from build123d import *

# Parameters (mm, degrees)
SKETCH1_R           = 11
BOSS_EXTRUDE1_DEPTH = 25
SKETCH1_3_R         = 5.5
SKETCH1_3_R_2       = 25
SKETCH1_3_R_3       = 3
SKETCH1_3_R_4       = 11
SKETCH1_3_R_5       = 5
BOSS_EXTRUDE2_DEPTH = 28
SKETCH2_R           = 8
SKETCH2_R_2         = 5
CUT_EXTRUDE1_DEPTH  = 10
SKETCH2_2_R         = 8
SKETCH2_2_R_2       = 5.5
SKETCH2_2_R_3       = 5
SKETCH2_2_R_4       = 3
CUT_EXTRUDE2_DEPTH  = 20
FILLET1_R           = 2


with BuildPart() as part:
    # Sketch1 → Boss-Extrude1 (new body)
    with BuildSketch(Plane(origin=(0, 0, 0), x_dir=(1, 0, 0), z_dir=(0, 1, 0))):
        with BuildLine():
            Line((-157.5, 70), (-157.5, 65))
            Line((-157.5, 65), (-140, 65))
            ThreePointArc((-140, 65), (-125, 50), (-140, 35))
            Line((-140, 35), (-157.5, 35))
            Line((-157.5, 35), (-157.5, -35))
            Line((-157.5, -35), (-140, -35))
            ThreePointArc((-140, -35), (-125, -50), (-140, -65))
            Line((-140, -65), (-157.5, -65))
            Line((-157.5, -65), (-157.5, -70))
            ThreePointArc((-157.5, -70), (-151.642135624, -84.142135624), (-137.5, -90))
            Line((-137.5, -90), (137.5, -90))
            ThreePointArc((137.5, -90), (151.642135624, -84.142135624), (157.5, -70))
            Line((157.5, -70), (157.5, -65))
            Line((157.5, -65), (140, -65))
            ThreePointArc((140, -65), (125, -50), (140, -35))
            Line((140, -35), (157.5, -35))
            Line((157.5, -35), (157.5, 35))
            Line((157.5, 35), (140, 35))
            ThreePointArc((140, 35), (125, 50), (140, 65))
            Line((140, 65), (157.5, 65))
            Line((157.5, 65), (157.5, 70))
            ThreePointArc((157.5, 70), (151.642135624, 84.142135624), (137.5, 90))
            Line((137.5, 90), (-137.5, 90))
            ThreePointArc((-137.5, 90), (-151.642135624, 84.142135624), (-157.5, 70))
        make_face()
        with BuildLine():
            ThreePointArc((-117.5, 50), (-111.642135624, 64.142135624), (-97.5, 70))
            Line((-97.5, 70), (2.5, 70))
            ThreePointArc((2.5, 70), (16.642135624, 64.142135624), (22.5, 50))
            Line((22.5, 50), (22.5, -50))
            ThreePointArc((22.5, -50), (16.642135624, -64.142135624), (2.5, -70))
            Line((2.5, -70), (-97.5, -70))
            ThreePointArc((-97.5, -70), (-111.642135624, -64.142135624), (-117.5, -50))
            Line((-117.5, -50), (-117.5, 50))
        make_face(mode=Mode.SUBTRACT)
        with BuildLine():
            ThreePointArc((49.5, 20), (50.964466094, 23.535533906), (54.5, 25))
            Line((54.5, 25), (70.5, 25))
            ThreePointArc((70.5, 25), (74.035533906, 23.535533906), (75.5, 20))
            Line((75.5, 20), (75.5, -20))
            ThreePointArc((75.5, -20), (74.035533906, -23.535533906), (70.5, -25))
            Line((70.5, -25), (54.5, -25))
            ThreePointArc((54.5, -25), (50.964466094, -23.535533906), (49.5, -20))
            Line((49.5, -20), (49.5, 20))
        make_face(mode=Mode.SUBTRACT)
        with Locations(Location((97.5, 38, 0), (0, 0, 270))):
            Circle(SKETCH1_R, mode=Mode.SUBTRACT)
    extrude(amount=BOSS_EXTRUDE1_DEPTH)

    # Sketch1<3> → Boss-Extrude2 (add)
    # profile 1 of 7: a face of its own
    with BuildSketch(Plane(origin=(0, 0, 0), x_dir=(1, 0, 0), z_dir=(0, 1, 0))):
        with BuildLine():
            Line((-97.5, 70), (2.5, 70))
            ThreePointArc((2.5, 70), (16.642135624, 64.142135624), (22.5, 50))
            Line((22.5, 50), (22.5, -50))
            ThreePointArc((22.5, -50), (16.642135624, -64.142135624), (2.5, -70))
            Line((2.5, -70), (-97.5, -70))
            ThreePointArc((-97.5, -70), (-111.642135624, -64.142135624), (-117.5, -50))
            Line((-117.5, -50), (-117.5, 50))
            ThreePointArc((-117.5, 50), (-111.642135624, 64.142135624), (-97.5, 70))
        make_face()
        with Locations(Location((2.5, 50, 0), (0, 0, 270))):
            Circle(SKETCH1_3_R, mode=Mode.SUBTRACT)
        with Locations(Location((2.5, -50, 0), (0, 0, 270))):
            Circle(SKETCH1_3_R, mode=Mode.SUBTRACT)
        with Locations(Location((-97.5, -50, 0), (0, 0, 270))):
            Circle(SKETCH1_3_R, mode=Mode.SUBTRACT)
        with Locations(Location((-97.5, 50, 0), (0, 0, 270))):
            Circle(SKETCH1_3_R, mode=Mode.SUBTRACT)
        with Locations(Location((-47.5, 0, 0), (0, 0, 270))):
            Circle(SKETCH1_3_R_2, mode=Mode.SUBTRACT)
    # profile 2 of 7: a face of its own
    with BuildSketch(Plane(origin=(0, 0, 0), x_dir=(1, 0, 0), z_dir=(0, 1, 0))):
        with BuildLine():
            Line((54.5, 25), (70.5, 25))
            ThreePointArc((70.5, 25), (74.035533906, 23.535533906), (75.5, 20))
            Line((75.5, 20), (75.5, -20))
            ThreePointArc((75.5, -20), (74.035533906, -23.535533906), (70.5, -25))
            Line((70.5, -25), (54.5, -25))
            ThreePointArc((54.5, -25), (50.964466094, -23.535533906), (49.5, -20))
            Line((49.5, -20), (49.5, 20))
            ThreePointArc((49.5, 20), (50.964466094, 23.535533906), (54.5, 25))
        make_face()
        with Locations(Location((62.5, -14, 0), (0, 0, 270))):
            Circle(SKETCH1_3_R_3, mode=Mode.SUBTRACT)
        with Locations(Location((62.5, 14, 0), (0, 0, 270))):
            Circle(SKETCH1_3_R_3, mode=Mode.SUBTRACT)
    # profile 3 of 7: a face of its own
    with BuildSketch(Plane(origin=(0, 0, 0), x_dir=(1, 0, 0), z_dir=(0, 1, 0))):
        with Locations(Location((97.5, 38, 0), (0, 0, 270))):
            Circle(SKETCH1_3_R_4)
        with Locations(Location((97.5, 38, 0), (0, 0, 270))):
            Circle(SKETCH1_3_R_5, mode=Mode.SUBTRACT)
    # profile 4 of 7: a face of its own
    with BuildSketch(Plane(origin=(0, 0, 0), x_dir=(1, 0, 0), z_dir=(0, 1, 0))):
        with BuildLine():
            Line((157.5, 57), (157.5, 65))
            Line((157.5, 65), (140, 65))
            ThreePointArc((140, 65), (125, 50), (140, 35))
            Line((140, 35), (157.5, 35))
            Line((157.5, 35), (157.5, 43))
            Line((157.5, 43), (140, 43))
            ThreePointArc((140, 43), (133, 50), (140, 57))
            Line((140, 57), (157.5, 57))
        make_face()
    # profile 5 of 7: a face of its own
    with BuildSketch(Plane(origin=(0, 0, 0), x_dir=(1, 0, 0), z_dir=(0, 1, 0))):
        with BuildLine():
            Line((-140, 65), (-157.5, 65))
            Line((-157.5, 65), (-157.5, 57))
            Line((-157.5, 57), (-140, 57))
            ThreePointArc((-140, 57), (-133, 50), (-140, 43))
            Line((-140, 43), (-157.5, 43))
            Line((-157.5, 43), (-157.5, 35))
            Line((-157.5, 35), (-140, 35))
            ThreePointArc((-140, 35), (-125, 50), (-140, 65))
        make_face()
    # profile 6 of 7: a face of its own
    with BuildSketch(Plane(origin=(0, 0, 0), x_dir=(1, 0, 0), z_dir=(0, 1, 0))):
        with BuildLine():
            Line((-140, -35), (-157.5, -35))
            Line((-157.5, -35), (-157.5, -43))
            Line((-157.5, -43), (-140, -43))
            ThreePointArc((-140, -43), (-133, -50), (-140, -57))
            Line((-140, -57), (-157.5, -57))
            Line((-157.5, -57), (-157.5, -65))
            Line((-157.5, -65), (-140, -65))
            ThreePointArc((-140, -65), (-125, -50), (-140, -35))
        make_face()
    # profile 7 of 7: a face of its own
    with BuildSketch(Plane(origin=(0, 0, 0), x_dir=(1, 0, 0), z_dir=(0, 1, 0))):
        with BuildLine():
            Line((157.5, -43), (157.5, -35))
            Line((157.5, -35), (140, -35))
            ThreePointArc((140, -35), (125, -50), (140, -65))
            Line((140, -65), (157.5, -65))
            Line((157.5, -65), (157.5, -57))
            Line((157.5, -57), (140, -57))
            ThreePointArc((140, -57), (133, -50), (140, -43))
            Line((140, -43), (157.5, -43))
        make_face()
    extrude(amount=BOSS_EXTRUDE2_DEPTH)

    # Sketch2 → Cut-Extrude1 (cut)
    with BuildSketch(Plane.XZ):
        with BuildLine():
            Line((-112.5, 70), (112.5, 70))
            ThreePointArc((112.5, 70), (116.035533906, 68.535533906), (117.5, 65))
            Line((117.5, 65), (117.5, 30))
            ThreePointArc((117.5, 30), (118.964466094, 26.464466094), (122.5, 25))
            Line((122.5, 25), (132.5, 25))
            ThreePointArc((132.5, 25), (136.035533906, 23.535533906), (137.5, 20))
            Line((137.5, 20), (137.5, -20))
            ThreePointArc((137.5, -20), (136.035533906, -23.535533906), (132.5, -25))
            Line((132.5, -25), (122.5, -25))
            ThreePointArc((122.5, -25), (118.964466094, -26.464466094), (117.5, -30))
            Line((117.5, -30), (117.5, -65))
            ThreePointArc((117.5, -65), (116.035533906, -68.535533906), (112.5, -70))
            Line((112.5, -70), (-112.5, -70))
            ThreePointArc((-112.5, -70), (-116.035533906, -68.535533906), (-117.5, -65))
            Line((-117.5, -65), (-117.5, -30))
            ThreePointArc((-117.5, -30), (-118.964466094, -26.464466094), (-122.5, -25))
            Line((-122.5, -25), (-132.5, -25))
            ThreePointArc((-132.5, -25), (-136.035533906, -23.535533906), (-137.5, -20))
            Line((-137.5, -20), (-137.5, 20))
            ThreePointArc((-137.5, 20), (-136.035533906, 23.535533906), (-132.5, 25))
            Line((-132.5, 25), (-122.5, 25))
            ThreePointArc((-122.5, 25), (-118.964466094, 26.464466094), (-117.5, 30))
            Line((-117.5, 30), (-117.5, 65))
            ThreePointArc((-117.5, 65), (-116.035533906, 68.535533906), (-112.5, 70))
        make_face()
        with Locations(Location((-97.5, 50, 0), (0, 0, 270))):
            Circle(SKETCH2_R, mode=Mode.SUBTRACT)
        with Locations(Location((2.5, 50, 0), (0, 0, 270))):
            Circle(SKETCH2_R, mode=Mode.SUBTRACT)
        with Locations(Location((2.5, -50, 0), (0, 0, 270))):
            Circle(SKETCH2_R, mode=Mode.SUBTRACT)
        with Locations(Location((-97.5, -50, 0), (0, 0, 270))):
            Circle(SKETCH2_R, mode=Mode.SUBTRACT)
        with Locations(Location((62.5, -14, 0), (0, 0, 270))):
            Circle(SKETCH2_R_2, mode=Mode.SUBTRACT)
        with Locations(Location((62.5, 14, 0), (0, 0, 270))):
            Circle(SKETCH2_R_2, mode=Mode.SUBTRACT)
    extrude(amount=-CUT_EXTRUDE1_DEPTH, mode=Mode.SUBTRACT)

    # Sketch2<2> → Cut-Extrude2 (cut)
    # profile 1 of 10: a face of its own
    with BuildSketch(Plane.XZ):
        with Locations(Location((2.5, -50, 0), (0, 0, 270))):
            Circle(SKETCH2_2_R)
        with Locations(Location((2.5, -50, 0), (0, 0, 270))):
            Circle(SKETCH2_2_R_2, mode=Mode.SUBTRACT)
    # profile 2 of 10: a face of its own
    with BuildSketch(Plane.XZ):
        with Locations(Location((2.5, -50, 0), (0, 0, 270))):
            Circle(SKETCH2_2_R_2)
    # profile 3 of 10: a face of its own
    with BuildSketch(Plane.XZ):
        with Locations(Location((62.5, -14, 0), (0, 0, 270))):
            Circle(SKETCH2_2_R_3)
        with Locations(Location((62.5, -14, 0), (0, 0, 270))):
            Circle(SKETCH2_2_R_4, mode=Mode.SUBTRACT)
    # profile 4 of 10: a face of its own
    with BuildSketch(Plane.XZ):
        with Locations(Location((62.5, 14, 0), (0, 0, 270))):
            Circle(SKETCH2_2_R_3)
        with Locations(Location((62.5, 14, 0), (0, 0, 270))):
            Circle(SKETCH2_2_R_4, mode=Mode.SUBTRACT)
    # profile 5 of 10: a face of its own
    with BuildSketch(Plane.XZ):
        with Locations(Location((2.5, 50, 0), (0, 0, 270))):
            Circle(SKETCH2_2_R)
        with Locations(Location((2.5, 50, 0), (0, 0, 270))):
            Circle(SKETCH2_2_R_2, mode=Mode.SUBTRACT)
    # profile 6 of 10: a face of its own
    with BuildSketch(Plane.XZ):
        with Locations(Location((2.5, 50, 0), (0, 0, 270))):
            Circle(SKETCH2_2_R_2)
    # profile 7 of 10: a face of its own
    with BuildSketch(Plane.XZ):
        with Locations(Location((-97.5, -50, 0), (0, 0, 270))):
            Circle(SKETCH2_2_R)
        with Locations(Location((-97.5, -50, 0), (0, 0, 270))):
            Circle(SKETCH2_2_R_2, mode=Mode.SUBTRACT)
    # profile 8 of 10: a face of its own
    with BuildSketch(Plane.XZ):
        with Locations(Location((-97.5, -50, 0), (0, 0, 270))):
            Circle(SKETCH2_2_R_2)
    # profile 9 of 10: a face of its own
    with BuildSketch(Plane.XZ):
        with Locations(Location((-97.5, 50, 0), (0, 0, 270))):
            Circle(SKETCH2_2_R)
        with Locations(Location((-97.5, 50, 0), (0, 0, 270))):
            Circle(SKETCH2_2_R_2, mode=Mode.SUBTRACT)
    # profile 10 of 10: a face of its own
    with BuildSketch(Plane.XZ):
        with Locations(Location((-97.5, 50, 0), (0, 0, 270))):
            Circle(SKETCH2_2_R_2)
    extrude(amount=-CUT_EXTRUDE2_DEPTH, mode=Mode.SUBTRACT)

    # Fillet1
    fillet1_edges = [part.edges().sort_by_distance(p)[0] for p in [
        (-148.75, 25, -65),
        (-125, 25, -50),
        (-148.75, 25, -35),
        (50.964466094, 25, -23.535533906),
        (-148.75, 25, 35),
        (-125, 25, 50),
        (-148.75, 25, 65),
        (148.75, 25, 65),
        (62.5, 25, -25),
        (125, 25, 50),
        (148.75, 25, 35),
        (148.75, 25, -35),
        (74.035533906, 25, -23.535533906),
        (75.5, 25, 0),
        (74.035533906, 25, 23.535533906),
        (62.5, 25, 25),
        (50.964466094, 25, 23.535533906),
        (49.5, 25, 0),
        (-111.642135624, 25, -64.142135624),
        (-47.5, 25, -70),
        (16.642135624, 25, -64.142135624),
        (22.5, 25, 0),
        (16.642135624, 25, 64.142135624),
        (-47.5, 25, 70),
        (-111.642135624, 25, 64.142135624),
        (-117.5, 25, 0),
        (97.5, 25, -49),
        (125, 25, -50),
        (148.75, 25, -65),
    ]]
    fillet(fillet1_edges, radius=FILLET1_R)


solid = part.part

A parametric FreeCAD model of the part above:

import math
import FreeCAD as App
import Part
import Sketcher

V = App.Vector
Q = App.Units.Quantity


def edges_at(feature, points):
    """Names of the edges that pass closest to the given points."""
    edges = feature.Shape.Edges
    near = lambda p: min(range(len(edges)), key=lambda i: edges[i].distToShape(Part.Vertex(*p))[0])
    return sorted({f"Edge{near(p) + 1}" for p in points})

doc = App.newDocument("Part")
params = doc.addObject("Spreadsheet::Sheet", "Params")
for row, (alias, value) in enumerate([
    ("sketch1_diameter", "22 mm"),
    ("sketch1_radius", "15 mm"),
    ("sketch1_radius2", "20 mm"),
    ("sketch1_radius3", "5 mm"),
    ("sketch1_width", "275 mm"),
    ("pad1_length", "25 mm"),
    ("sketch2_diameter", "11 mm"),
    ("sketch2_diameter2", "50 mm"),
    ("sketch2_diameter3", "6 mm"),
    ("sketch2_diameter4", "22 mm"),
    ("sketch2_diameter5", "10 mm"),
    ("pad2_length", "28 mm"),
    ("sketch3_diameter", "16 mm"),
    ("sketch3_diameter2", "10 mm"),
    ("sketch3_width", "225 mm"),
    ("sketch3_width2", "10 mm"),
    ("sketch3_height", "35 mm"),
    ("pocket1_length", "10 mm"),
    ("sketch4_diameter", "16 mm"),
    ("sketch4_diameter2", "10 mm"),
    ("sketch4_diameter3", "6 mm"),
    ("pocket2_length", "20 mm"),
    ("fillet_radius", "2 mm"),
], start=1):
    params.set(f"A{row}", alias)
    params.set(f"B{row}", "=" + value)
    params.setAlias(f"B{row}", alias)

body = doc.addObject("PartDesign::Body", "Body")

# Sketch on XZ plane
sketch1 = doc.addObject("Sketcher::SketchObject", "Sketch")
body.addObject(sketch1)
sketch1.AttachmentSupport = (doc.XZ_Plane, [""])
sketch1.MapMode = "FlatFace"
sketch1.addGeometry([
    Part.LineSegment(V(-157.5, -70, 0), V(-157.5, -65, 0)),  # 0
    Part.LineSegment(V(-157.5, -65, 0), V(-140, -65, 0)),  # 1
    Part.ArcOfCircle(Part.Circle(V(-140, -50, 0), V(0, 0, 1), 15), math.radians(-90), math.radians(90)),  # 2
    Part.LineSegment(V(-140, -35, 0), V(-157.5, -35, 0)),  # 3
    Part.LineSegment(V(-157.5, -35, 0), V(-157.5, 35, 0)),  # 4
    Part.LineSegment(V(-157.5, 35, 0), V(-140, 35, 0)),  # 5
    Part.ArcOfCircle(Part.Circle(V(-140, 50, 0), V(0, 0, 1), 15), math.radians(-90), math.radians(90)),  # 6
    Part.LineSegment(V(-140, 65, 0), V(-157.5, 65, 0)),  # 7
    Part.LineSegment(V(-157.5, 65, 0), V(-157.5, 70, 0)),  # 8
    Part.ArcOfCircle(Part.Circle(V(-137.5, 70, 0), V(0, 0, 1), 20), math.radians(90), math.radians(180)),  # 9
    Part.LineSegment(V(-137.5, 90, 0), V(137.5, 90, 0)),  # 10
    Part.ArcOfCircle(Part.Circle(V(137.5, 70, 0), V(0, 0, 1), 20), math.radians(0), math.radians(90)),  # 11
    Part.LineSegment(V(157.5, 70, 0), V(157.5, 65, 0)),  # 12
    Part.LineSegment(V(157.5, 65, 0), V(140, 65, 0)),  # 13
    Part.ArcOfCircle(Part.Circle(V(140, 50, 0), V(0, 0, 1), 15), math.radians(90), math.radians(270)),  # 14
    Part.LineSegment(V(140, 35, 0), V(157.5, 35, 0)),  # 15
    Part.LineSegment(V(157.5, 35, 0), V(157.5, -35, 0)),  # 16
    Part.LineSegment(V(157.5, -35, 0), V(140, -35, 0)),  # 17
    Part.ArcOfCircle(Part.Circle(V(140, -50, 0), V(0, 0, 1), 15), math.radians(90), math.radians(270)),  # 18
    Part.LineSegment(V(140, -65, 0), V(157.5, -65, 0)),  # 19
    Part.LineSegment(V(157.5, -65, 0), V(157.5, -70, 0)),  # 20
    Part.ArcOfCircle(Part.Circle(V(137.5, -70, 0), V(0, 0, 1), 20), math.radians(-90), math.radians(0)),  # 21
    Part.LineSegment(V(137.5, -90, 0), V(-137.5, -90, 0)),  # 22
    Part.ArcOfCircle(Part.Circle(V(-137.5, -70, 0), V(0, 0, 1), 20), math.radians(180), math.radians(270)),  # 23
    Part.LineSegment(V(-117.5, 50, 0), V(-117.5, -50, 0)),  # 24
    Part.ArcOfCircle(Part.Circle(V(-97.5, -50, 0), V(0, 0, 1), 20), math.radians(180), math.radians(270)),  # 25
    Part.LineSegment(V(-97.5, -70, 0), V(2.5, -70, 0)),  # 26
    Part.ArcOfCircle(Part.Circle(V(2.5, -50, 0), V(0, 0, 1), 20), math.radians(-90), math.radians(0)),  # 27
    Part.LineSegment(V(22.5, -50, 0), V(22.5, 50, 0)),  # 28
    Part.ArcOfCircle(Part.Circle(V(2.5, 50, 0), V(0, 0, 1), 20), math.radians(0), math.radians(90)),  # 29
    Part.LineSegment(V(2.5, 70, 0), V(-97.5, 70, 0)),  # 30
    Part.ArcOfCircle(Part.Circle(V(-97.5, 50, 0), V(0, 0, 1), 20), math.radians(90), math.radians(180)),  # 31
    Part.LineSegment(V(49.5, 20, 0), V(49.5, -20, 0)),  # 32
    Part.ArcOfCircle(Part.Circle(V(54.5, -20, 0), V(0, 0, 1), 5), math.radians(180), math.radians(270)),  # 33
    Part.LineSegment(V(54.5, -25, 0), V(70.5, -25, 0)),  # 34
    Part.ArcOfCircle(Part.Circle(V(70.5, -20, 0), V(0, 0, 1), 5), math.radians(-90), math.radians(0)),  # 35
    Part.LineSegment(V(75.5, -20, 0), V(75.5, 20, 0)),  # 36
    Part.ArcOfCircle(Part.Circle(V(70.5, 20, 0), V(0, 0, 1), 5), math.radians(0), math.radians(90)),  # 37
    Part.LineSegment(V(70.5, 25, 0), V(54.5, 25, 0)),  # 38
    Part.ArcOfCircle(Part.Circle(V(54.5, 20, 0), V(0, 0, 1), 5), math.radians(90), math.radians(180)),  # 39
    Part.Circle(V(97.5, -38, 0), V(0, 0, 1), 11),  # 40
], False)
sketch1.addConstraint([
    Sketcher.Constraint("Coincident", 0, 2, 1, 1),
    Sketcher.Constraint("Tangent", 1, 2, 2, 1),
    Sketcher.Constraint("Tangent", 2, 2, 3, 1),
    Sketcher.Constraint("Coincident", 3, 2, 4, 1),
    Sketcher.Constraint("Coincident", 4, 2, 5, 1),
    Sketcher.Constraint("Tangent", 5, 2, 6, 1),
    Sketcher.Constraint("Tangent", 6, 2, 7, 1),
    Sketcher.Constraint("Coincident", 7, 2, 8, 1),
    Sketcher.Constraint("Tangent", 8, 2, 9, 2),
    Sketcher.Constraint("Tangent", 9, 1, 10, 1),
    Sketcher.Constraint("Tangent", 10, 2, 11, 2),
    Sketcher.Constraint("Tangent", 11, 1, 12, 1),
    Sketcher.Constraint("Coincident", 12, 2, 13, 1),
    Sketcher.Constraint("Tangent", 13, 2, 14, 1),
    Sketcher.Constraint("Tangent", 14, 2, 15, 1),
    Sketcher.Constraint("Coincident", 15, 2, 16, 1),
    Sketcher.Constraint("Coincident", 16, 2, 17, 1),
    Sketcher.Constraint("Tangent", 17, 2, 18, 1),
    Sketcher.Constraint("Tangent", 18, 2, 19, 1),
    Sketcher.Constraint("Coincident", 19, 2, 20, 1),
    Sketcher.Constraint("Tangent", 20, 2, 21, 2),
    Sketcher.Constraint("Tangent", 21, 1, 22, 1),
    Sketcher.Constraint("Tangent", 22, 2, 23, 2),
    Sketcher.Constraint("Tangent", 23, 1, 0, 1),
    Sketcher.Constraint("Tangent", 24, 2, 25, 1),
    Sketcher.Constraint("Tangent", 25, 2, 26, 1),
    Sketcher.Constraint("Tangent", 26, 2, 27, 1),
    Sketcher.Constraint("Tangent", 27, 2, 28, 1),
    Sketcher.Constraint("Tangent", 28, 2, 29, 1),
    Sketcher.Constraint("Tangent", 29, 2, 30, 1),
    Sketcher.Constraint("Tangent", 30, 2, 31, 1),
    Sketcher.Constraint("Tangent", 31, 2, 24, 1),
    Sketcher.Constraint("Tangent", 32, 2, 33, 1),
    Sketcher.Constraint("Tangent", 33, 2, 34, 1),
    Sketcher.Constraint("Tangent", 34, 2, 35, 1),
    Sketcher.Constraint("Tangent", 35, 2, 36, 1),
    Sketcher.Constraint("Tangent", 36, 2, 37, 1),
    Sketcher.Constraint("Tangent", 37, 2, 38, 1),
    Sketcher.Constraint("Tangent", 38, 2, 39, 1),
    Sketcher.Constraint("Tangent", 39, 2, 32, 1),
    Sketcher.Constraint("Vertical", 0),
    Sketcher.Constraint("Horizontal", 1),
    Sketcher.Constraint("Horizontal", 3),
    Sketcher.Constraint("Vertical", 4),
    Sketcher.Constraint("Horizontal", 5),
    Sketcher.Constraint("Horizontal", 7),
    Sketcher.Constraint("Vertical", 8),
    Sketcher.Constraint("Horizontal", 10),
    Sketcher.Constraint("Vertical", 12),
    Sketcher.Constraint("Horizontal", 13),
    Sketcher.Constraint("Horizontal", 15),
    Sketcher.Constraint("Vertical", 16),
    Sketcher.Constraint("Horizontal", 17),
    Sketcher.Constraint("Horizontal", 19),
    Sketcher.Constraint("Vertical", 20),
    Sketcher.Constraint("Horizontal", 22),
    Sketcher.Constraint("Vertical", 24),
    Sketcher.Constraint("Horizontal", 26),
    Sketcher.Constraint("Vertical", 28),
    Sketcher.Constraint("Horizontal", 30),
    Sketcher.Constraint("Vertical", 32),
    Sketcher.Constraint("Horizontal", 34),
    Sketcher.Constraint("Vertical", 36),
    Sketcher.Constraint("Horizontal", 38),
    Sketcher.Constraint("Equal", 2, 6),
    Sketcher.Constraint("Equal", 9, 11),
    Sketcher.Constraint("Equal", 6, 14),
    Sketcher.Constraint("Equal", 14, 18),
    Sketcher.Constraint("Equal", 11, 21),
    Sketcher.Constraint("Equal", 21, 23),
    Sketcher.Constraint("Equal", 23, 25),
    Sketcher.Constraint("Equal", 25, 27),
    Sketcher.Constraint("Equal", 27, 29),
    Sketcher.Constraint("Equal", 29, 31),
    Sketcher.Constraint("Equal", 33, 35),
    Sketcher.Constraint("Equal", 35, 37),
    Sketcher.Constraint("Equal", 37, 39),
    Sketcher.Constraint("Symmetric", 2, 3, 14, 3, -1, 1),
    Sketcher.Constraint("Symmetric", 6, 3, 18, 3, -1, 1),
    Sketcher.Constraint("Symmetric", 9, 3, 21, 3, -1, 1),
    Sketcher.Constraint("Symmetric", 6, 3, 14, 3, -2),
    Sketcher.Constraint("Horizontal", 18, 3, 25, 3),
    Sketcher.Constraint("Horizontal", 14, 3, 29, 3),
    Sketcher.Constraint("Horizontal", 23, 1, 25, 2),
    Sketcher.Constraint("Vertical", 11, 3, 21, 3),
    Sketcher.Constraint("Vertical", 9, 3, 23, 3),
    Sketcher.Constraint("Vertical", 0, 2, 3, 2),
    Sketcher.Constraint("Vertical", 12, 2, 15, 2),
    Sketcher.Constraint("Equal", 30, 24),
    Sketcher.Constraint("Diameter", 40, Q("22 mm")),
    Sketcher.Constraint("Radius", 2, Q("15 mm")),
    Sketcher.Constraint("Radius", 9, Q("20 mm")),
    Sketcher.Constraint("Radius", 33, Q("5 mm")),
    Sketcher.Constraint("DistanceX", 10, 1, 10, 2, Q("275 mm")),
    Sketcher.Constraint("DistanceX", 26, 1, 26, 2, Q("100 mm")),
    Sketcher.Constraint("DistanceX", 34, 1, 34, 2, Q("16 mm")),
    Sketcher.Constraint("DistanceY", 32, 2, 32, 1, Q("40 mm")),
    Sketcher.Constraint("DistanceX", 1, 1, 1, 2, Q("17.5 mm")),
    Sketcher.Constraint("DistanceY", 33, 3, -1, 1, Q("20 mm")),
    Sketcher.Constraint("DistanceY", 40, 3, -1, 1, Q("38 mm")),
    Sketcher.Constraint("DistanceX", 23, 3, 25, 3, Q("40 mm")),
    Sketcher.Constraint("DistanceX", 27, 3, 33, 3, Q("52 mm")),
    Sketcher.Constraint("DistanceX", 35, 3, 40, 3, Q("27 mm")),
])
sketch1.setExpression("Constraints[89]", "Params.sketch1_diameter")
sketch1.setExpression("Constraints[90]", "Params.sketch1_radius")
sketch1.setExpression("Constraints[91]", "Params.sketch1_radius2")
sketch1.setExpression("Constraints[92]", "Params.sketch1_radius3")
sketch1.setExpression("Constraints[93]", "Params.sketch1_width")
pad1 = doc.addObject("PartDesign::Pad", "Pad")
body.addObject(pad1)
pad1.Profile = sketch1
pad1.setExpression("Length", "Params.pad1_length")
pad1.Reversed = True

# Sketch on XZ plane
sketch2 = doc.addObject("Sketcher::SketchObject", "Sketch001")
body.addObject(sketch2)
sketch2.AttachmentSupport = (doc.XZ_Plane, [""])
sketch2.MapMode = "FlatFace"
sketch2.addGeometry([
    Part.LineSegment(V(2.5, -70, 0), V(-97.5, -70, 0)),  # 0
    Part.ArcOfCircle(Part.Circle(V(-97.5, -50, 0), V(0, 0, 1), 20), math.radians(180), math.radians(270)),  # 1
    Part.LineSegment(V(-117.5, -50, 0), V(-117.5, 50, 0)),  # 2
    Part.ArcOfCircle(Part.Circle(V(-97.5, 50, 0), V(0, 0, 1), 20), math.radians(90), math.radians(180)),  # 3
    Part.LineSegment(V(-97.5, 70, 0), V(2.5, 70, 0)),  # 4
    Part.ArcOfCircle(Part.Circle(V(2.5, 50, 0), V(0, 0, 1), 20), math.radians(0), math.radians(90)),  # 5
    Part.LineSegment(V(22.5, 50, 0), V(22.5, -50, 0)),  # 6
    Part.ArcOfCircle(Part.Circle(V(2.5, -50, 0), V(0, 0, 1), 20), math.radians(-90), math.radians(0)),  # 7
    Part.Circle(V(2.5, 50, 0), V(0, 0, 1), 5.5),  # 8
    Part.Circle(V(-97.5, 50, 0), V(0, 0, 1), 5.5),  # 9
    Part.Circle(V(2.5, -50, 0), V(0, 0, 1), 5.5),  # 10
    Part.Circle(V(-47.5, 0, 0), V(0, 0, 1), 25),  # 11
    Part.Circle(V(-97.5, -50, 0), V(0, 0, 1), 5.5),  # 12
    Part.LineSegment(V(70.5, -25, 0), V(54.5, -25, 0)),  # 13
    Part.ArcOfCircle(Part.Circle(V(54.5, -20, 0), V(0, 0, 1), 5), math.radians(180), math.radians(270)),  # 14
    Part.LineSegment(V(49.5, -20, 0), V(49.5, 20, 0)),  # 15
    Part.ArcOfCircle(Part.Circle(V(54.5, 20, 0), V(0, 0, 1), 5), math.radians(90), math.radians(180)),  # 16
    Part.LineSegment(V(54.5, 25, 0), V(70.5, 25, 0)),  # 17
    Part.ArcOfCircle(Part.Circle(V(70.5, 20, 0), V(0, 0, 1), 5), math.radians(0), math.radians(90)),  # 18
    Part.LineSegment(V(75.5, 20, 0), V(75.5, -20, 0)),  # 19
    Part.ArcOfCircle(Part.Circle(V(70.5, -20, 0), V(0, 0, 1), 5), math.radians(-90), math.radians(0)),  # 20
    Part.Circle(V(62.5, 14, 0), V(0, 0, 1), 3),  # 21
    Part.Circle(V(62.5, -14, 0), V(0, 0, 1), 3),  # 22
    Part.Circle(V(97.5, -38, 0), V(0, 0, 1), 11),  # 23
    Part.Circle(V(97.5, -38, 0), V(0, 0, 1), 5),  # 24
    Part.LineSegment(V(157.5, -57, 0), V(157.5, -65, 0)),  # 25
    Part.LineSegment(V(157.5, -65, 0), V(140, -65, 0)),  # 26
    Part.ArcOfCircle(Part.Circle(V(140, -50, 0), V(0, 0, 1), 15), math.radians(90), math.radians(270)),  # 27
    Part.LineSegment(V(140, -35, 0), V(157.5, -35, 0)),  # 28
    Part.LineSegment(V(157.5, -35, 0), V(157.5, -43, 0)),  # 29
    Part.LineSegment(V(157.5, -43, 0), V(140, -43, 0)),  # 30
    Part.ArcOfCircle(Part.Circle(V(140, -50, 0), V(0, 0, 1), 7), math.radians(90), math.radians(270)),  # 31
    Part.LineSegment(V(140, -57, 0), V(157.5, -57, 0)),  # 32
    Part.LineSegment(V(-140, -65, 0), V(-157.5, -65, 0)),  # 33
    Part.LineSegment(V(-157.5, -65, 0), V(-157.5, -57, 0)),  # 34
    Part.LineSegment(V(-157.5, -57, 0), V(-140, -57, 0)),  # 35
    Part.ArcOfCircle(Part.Circle(V(-140, -50, 0), V(0, 0, 1), 7), math.radians(-90), math.radians(90)),  # 36
    Part.LineSegment(V(-140, -43, 0), V(-157.5, -43, 0)),  # 37
    Part.LineSegment(V(-157.5, -43, 0), V(-157.5, -35, 0)),  # 38
    Part.LineSegment(V(-157.5, -35, 0), V(-140, -35, 0)),  # 39
    Part.ArcOfCircle(Part.Circle(V(-140, -50, 0), V(0, 0, 1), 15), math.radians(-90), math.radians(90)),  # 40
    Part.LineSegment(V(-140, 35, 0), V(-157.5, 35, 0)),  # 41
    Part.LineSegment(V(-157.5, 35, 0), V(-157.5, 43, 0)),  # 42
    Part.LineSegment(V(-157.5, 43, 0), V(-140, 43, 0)),  # 43
    Part.ArcOfCircle(Part.Circle(V(-140, 50, 0), V(0, 0, 1), 7), math.radians(-90), math.radians(90)),  # 44
    Part.LineSegment(V(-140, 57, 0), V(-157.5, 57, 0)),  # 45
    Part.LineSegment(V(-157.5, 57, 0), V(-157.5, 65, 0)),  # 46
    Part.LineSegment(V(-157.5, 65, 0), V(-140, 65, 0)),  # 47
    Part.ArcOfCircle(Part.Circle(V(-140, 50, 0), V(0, 0, 1), 15), math.radians(-90), math.radians(90)),  # 48
    Part.LineSegment(V(157.5, 43, 0), V(157.5, 35, 0)),  # 49
    Part.LineSegment(V(157.5, 35, 0), V(140, 35, 0)),  # 50
    Part.ArcOfCircle(Part.Circle(V(140, 50, 0), V(0, 0, 1), 15), math.radians(90), math.radians(270)),  # 51
    Part.LineSegment(V(140, 65, 0), V(157.5, 65, 0)),  # 52
    Part.LineSegment(V(157.5, 65, 0), V(157.5, 57, 0)),  # 53
    Part.LineSegment(V(157.5, 57, 0), V(140, 57, 0)),  # 54
    Part.ArcOfCircle(Part.Circle(V(140, 50, 0), V(0, 0, 1), 7), math.radians(90), math.radians(270)),  # 55
    Part.LineSegment(V(140, 43, 0), V(157.5, 43, 0)),  # 56
], False)
sketch2.addConstraint([
    Sketcher.Constraint("Tangent", 0, 2, 1, 2),
    Sketcher.Constraint("Tangent", 1, 1, 2, 1),
    Sketcher.Constraint("Tangent", 2, 2, 3, 2),
    Sketcher.Constraint("Tangent", 3, 1, 4, 1),
    Sketcher.Constraint("Tangent", 4, 2, 5, 2),
    Sketcher.Constraint("Tangent", 5, 1, 6, 1),
    Sketcher.Constraint("Tangent", 6, 2, 7, 2),
    Sketcher.Constraint("Tangent", 7, 1, 0, 1),
    Sketcher.Constraint("Tangent", 13, 2, 14, 2),
    Sketcher.Constraint("Tangent", 14, 1, 15, 1),
    Sketcher.Constraint("Tangent", 15, 2, 16, 2),
    Sketcher.Constraint("Tangent", 16, 1, 17, 1),
    Sketcher.Constraint("Tangent", 17, 2, 18, 2),
    Sketcher.Constraint("Tangent", 18, 1, 19, 1),
    Sketcher.Constraint("Tangent", 19, 2, 20, 2),
    Sketcher.Constraint("Tangent", 20, 1, 13, 1),
    Sketcher.Constraint("Coincident", 25, 2, 26, 1),
    Sketcher.Constraint("Tangent", 26, 2, 27, 2),
    Sketcher.Constraint("Tangent", 27, 1, 28, 1),
    Sketcher.Constraint("Coincident", 28, 2, 29, 1),
    Sketcher.Constraint("Coincident", 29, 2, 30, 1),
    Sketcher.Constraint("Tangent", 30, 2, 31, 1),
    Sketcher.Constraint("Tangent", 31, 2, 32, 1),
    Sketcher.Constraint("Coincident", 32, 2, 25, 1),
    Sketcher.Constraint("Coincident", 33, 2, 34, 1),
    Sketcher.Constraint("Coincident", 34, 2, 35, 1),
    Sketcher.Constraint("Tangent", 35, 2, 36, 1),
    Sketcher.Constraint("Tangent", 36, 2, 37, 1),
    Sketcher.Constraint("Coincident", 37, 2, 38, 1),
    Sketcher.Constraint("Coincident", 38, 2, 39, 1),
    Sketcher.Constraint("Tangent", 39, 2, 40, 2),
    Sketcher.Constraint("Tangent", 40, 1, 33, 1),
    Sketcher.Constraint("Coincident", 41, 2, 42, 1),
    Sketcher.Constraint("Coincident", 42, 2, 43, 1),
    Sketcher.Constraint("Tangent", 43, 2, 44, 1),
    Sketcher.Constraint("Tangent", 44, 2, 45, 1),
    Sketcher.Constraint("Coincident", 45, 2, 46, 1),
    Sketcher.Constraint("Coincident", 46, 2, 47, 1),
    Sketcher.Constraint("Tangent", 47, 2, 48, 2),
    Sketcher.Constraint("Tangent", 48, 1, 41, 1),
    Sketcher.Constraint("Coincident", 49, 2, 50, 1),
    Sketcher.Constraint("Tangent", 50, 2, 51, 2),
    Sketcher.Constraint("Tangent", 51, 1, 52, 1),
    Sketcher.Constraint("Coincident", 52, 2, 53, 1),
    Sketcher.Constraint("Coincident", 53, 2, 54, 1),
    Sketcher.Constraint("Tangent", 54, 2, 55, 1),
    Sketcher.Constraint("Tangent", 55, 2, 56, 1),
    Sketcher.Constraint("Coincident", 56, 2, 49, 1),
    Sketcher.Constraint("Horizontal", 0),
    Sketcher.Constraint("Vertical", 2),
    Sketcher.Constraint("Horizontal", 4),
    Sketcher.Constraint("Vertical", 6),
    Sketcher.Constraint("Horizontal", 13),
    Sketcher.Constraint("Vertical", 15),
    Sketcher.Constraint("Horizontal", 17),
    Sketcher.Constraint("Vertical", 19),
    Sketcher.Constraint("Vertical", 25),
    Sketcher.Constraint("Horizontal", 26),
    Sketcher.Constraint("Horizontal", 28),
    Sketcher.Constraint("Vertical", 29),
    Sketcher.Constraint("Horizontal", 30),
    Sketcher.Constraint("Horizontal", 32),
    Sketcher.Constraint("Horizontal", 33),
    Sketcher.Constraint("Vertical", 34),
    Sketcher.Constraint("Horizontal", 35),
    Sketcher.Constraint("Horizontal", 37),
    Sketcher.Constraint("Vertical", 38),
    Sketcher.Constraint("Horizontal", 39),
    Sketcher.Constraint("Horizontal", 41),
    Sketcher.Constraint("Vertical", 42),
    Sketcher.Constraint("Horizontal", 43),
    Sketcher.Constraint("Horizontal", 45),
    Sketcher.Constraint("Vertical", 46),
    Sketcher.Constraint("Horizontal", 47),
    Sketcher.Constraint("Vertical", 49),
    Sketcher.Constraint("Horizontal", 50),
    Sketcher.Constraint("Horizontal", 52),
    Sketcher.Constraint("Vertical", 53),
    Sketcher.Constraint("Horizontal", 54),
    Sketcher.Constraint("Horizontal", 56),
    Sketcher.Constraint("Coincident", 8, 3, 5, 3),
    Sketcher.Constraint("Coincident", 9, 3, 3, 3),
    Sketcher.Constraint("Coincident", 10, 3, 7, 3),
    Sketcher.Constraint("Coincident", 12, 3, 1, 3),
    Sketcher.Constraint("Coincident", 24, 3, 23, 3),
    Sketcher.Constraint("Coincident", 31, 3, 27, 3),
    Sketcher.Constraint("Coincident", 40, 3, 36, 3),
    Sketcher.Constraint("Coincident", 48, 3, 44, 3),
    Sketcher.Constraint("Coincident", 55, 3, 51, 3),
    Sketcher.Constraint("Equal", 1, 3),
    Sketcher.Constraint("Equal", 3, 5),
    Sketcher.Constraint("Equal", 5, 7),
    Sketcher.Constraint("Equal", 8, 9),
    Sketcher.Constraint("Equal", 9, 10),
    Sketcher.Constraint("Equal", 10, 12),
    Sketcher.Constraint("Equal", 14, 16),
    Sketcher.Constraint("Equal", 16, 18),
    Sketcher.Constraint("Equal", 18, 20),
    Sketcher.Constraint("Equal", 21, 22),
    Sketcher.Constraint("Equal", 20, 24),
    Sketcher.Constraint("Equal", 31, 36),
    Sketcher.Constraint("Equal", 27, 40),
    Sketcher.Constraint("Equal", 36, 44),
    Sketcher.Constraint("Equal", 40, 48),
    Sketcher.Constraint("Equal", 48, 51),
    Sketcher.Constraint("Equal", 44, 55),
    Sketcher.Constraint("Symmetric", 27, 3, 44, 3, -1, 1),
    Sketcher.Constraint("Symmetric", 36, 3, 51, 3, -1, 1),
    Sketcher.Constraint("Symmetric", 27, 3, 36, 3, -2),
    Sketcher.Constraint("Symmetric", 21, 3, 22, 3, -1),
    Sketcher.Constraint("PointOnObject", 11, 3, -1),
    Sketcher.Constraint("Horizontal", 12, 3, 27, 3),
    Sketcher.Constraint("Horizontal", 9, 3, 44, 3),
    Sketcher.Constraint("Vertical", 25, 2, 28, 2),
    Sketcher.Constraint("Vertical", 34, 2, 37, 2),
    Sketcher.Constraint("Vertical", 38, 2, 41, 2),
    Sketcher.Constraint("Vertical", 42, 2, 45, 2),
    Sketcher.Constraint("Vertical", 32, 2, 49, 2),
    Sketcher.Constraint("Vertical", 49, 2, 52, 2),
    Sketcher.Constraint("Equal", 32, 33),
    Sketcher.Constraint("Equal", 4, 2),
    Sketcher.Constraint("Diameter", 8, Q("11 mm")),
    Sketcher.Constraint("Diameter", 11, Q("50 mm")),
    Sketcher.Constraint("Diameter", 21, Q("6 mm")),
    Sketcher.Constraint("Diameter", 23, Q("22 mm")),
    Sketcher.Constraint("Diameter", 24, Q("10 mm")),
    Sketcher.Constraint("Radius", 1, Q("20 mm")),
    Sketcher.Constraint("Radius", 27, Q("15 mm")),
    Sketcher.Constraint("Radius", 31, Q("7 mm")),
    Sketcher.Constraint("DistanceX", 0, 2, 0, 1, Q("100 mm")),
    Sketcher.Constraint("DistanceX", 13, 2, 13, 1, Q("16 mm")),
    Sketcher.Constraint("DistanceY", 15, 1, 15, 2, Q("40 mm")),
    Sketcher.Constraint("DistanceX", 26, 2, 26, 1, Q("17.5 mm")),
    Sketcher.Constraint("DistanceY", 14, 3, -1, 1, Q("20 mm")),
    Sketcher.Constraint("DistanceY", -1, 1, 21, 3, Q("14 mm")),
    Sketcher.Constraint("DistanceY", 23, 3, -1, 1, Q("38 mm")),
    Sketcher.Constraint("DistanceX", -1, 1, 27, 3, Q("140 mm")),
    Sketcher.Constraint("DistanceX", 1, 3, -1, 1, Q("97.5 mm")),
    Sketcher.Constraint("DistanceX", 11, 3, -1, 1, Q("47.5 mm")),
    Sketcher.Constraint("DistanceX", -1, 1, 14, 3, Q("54.5 mm")),
    Sketcher.Constraint("DistanceX", -1, 1, 21, 3, Q("62.5 mm")),
    Sketcher.Constraint("DistanceX", -1, 1, 23, 3, Q("97.5 mm")),
])
sketch2.setExpression("Constraints[121]", "Params.sketch2_diameter")
sketch2.setExpression("Constraints[122]", "Params.sketch2_diameter2")
sketch2.setExpression("Constraints[123]", "Params.sketch2_diameter3")
sketch2.setExpression("Constraints[124]", "Params.sketch2_diameter4")
sketch2.setExpression("Constraints[125]", "Params.sketch2_diameter5")
pad2 = doc.addObject("PartDesign::Pad", "Pad001")
body.addObject(pad2)
pad2.Profile = sketch2
pad2.setExpression("Length", "Params.pad2_length")
pad2.Reversed = True

# Sketch on XZ plane
sketch3 = doc.addObject("Sketcher::SketchObject", "Sketch002")
body.addObject(sketch3)
sketch3.AttachmentSupport = (doc.XZ_Plane, [""])
sketch3.MapMode = "FlatFace"
sketch3.addGeometry([
    Part.LineSegment(V(112.5, 70, 0), V(-112.5, 70, 0)),  # 0
    Part.ArcOfCircle(Part.Circle(V(-112.5, 65, 0), V(0, 0, 1), 5), math.radians(90), math.radians(180)),  # 1
    Part.LineSegment(V(-117.5, 65, 0), V(-117.5, 30, 0)),  # 2
    Part.ArcOfCircle(Part.Circle(V(-122.5, 30, 0), V(0, 0, 1), 5), math.radians(-90), math.radians(0)),  # 3
    Part.LineSegment(V(-122.5, 25, 0), V(-132.5, 25, 0)),  # 4
    Part.ArcOfCircle(Part.Circle(V(-132.5, 20, 0), V(0, 0, 1), 5), math.radians(90), math.radians(180)),  # 5
    Part.LineSegment(V(-137.5, 20, 0), V(-137.5, -20, 0)),  # 6
    Part.ArcOfCircle(Part.Circle(V(-132.5, -20, 0), V(0, 0, 1), 5), math.radians(180), math.radians(270)),  # 7
    Part.LineSegment(V(-132.5, -25, 0), V(-122.5, -25, 0)),  # 8
    Part.ArcOfCircle(Part.Circle(V(-122.5, -30, 0), V(0, 0, 1), 5), math.radians(0), math.radians(90)),  # 9
    Part.LineSegment(V(-117.5, -30, 0), V(-117.5, -65, 0)),  # 10
    Part.ArcOfCircle(Part.Circle(V(-112.5, -65, 0), V(0, 0, 1), 5), math.radians(180), math.radians(270)),  # 11
    Part.LineSegment(V(-112.5, -70, 0), V(112.5, -70, 0)),  # 12
    Part.ArcOfCircle(Part.Circle(V(112.5, -65, 0), V(0, 0, 1), 5), math.radians(-90), math.radians(0)),  # 13
    Part.LineSegment(V(117.5, -65, 0), V(117.5, -30, 0)),  # 14
    Part.ArcOfCircle(Part.Circle(V(122.5, -30, 0), V(0, 0, 1), 5), math.radians(90), math.radians(180)),  # 15
    Part.LineSegment(V(122.5, -25, 0), V(132.5, -25, 0)),  # 16
    Part.ArcOfCircle(Part.Circle(V(132.5, -20, 0), V(0, 0, 1), 5), math.radians(-90), math.radians(0)),  # 17
    Part.LineSegment(V(137.5, -20, 0), V(137.5, 20, 0)),  # 18
    Part.ArcOfCircle(Part.Circle(V(132.5, 20, 0), V(0, 0, 1), 5), math.radians(0), math.radians(90)),  # 19
    Part.LineSegment(V(132.5, 25, 0), V(122.5, 25, 0)),  # 20
    Part.ArcOfCircle(Part.Circle(V(122.5, 30, 0), V(0, 0, 1), 5), math.radians(180), math.radians(270)),  # 21
    Part.LineSegment(V(117.5, 30, 0), V(117.5, 65, 0)),  # 22
    Part.ArcOfCircle(Part.Circle(V(112.5, 65, 0), V(0, 0, 1), 5), math.radians(0), math.radians(90)),  # 23
    Part.Circle(V(2.5, -50, 0), V(0, 0, 1), 8),  # 24
    Part.Circle(V(62.5, -14, 0), V(0, 0, 1), 5),  # 25
    Part.Circle(V(-97.5, -50, 0), V(0, 0, 1), 8),  # 26
    Part.Circle(V(62.5, 14, 0), V(0, 0, 1), 5),  # 27
    Part.Circle(V(2.5, 50, 0), V(0, 0, 1), 8),  # 28
    Part.Circle(V(-97.5, 50, 0), V(0, 0, 1), 8),  # 29
], False)
sketch3.addConstraint([
    Sketcher.Constraint("Tangent", 0, 2, 1, 1),
    Sketcher.Constraint("Tangent", 1, 2, 2, 1),
    Sketcher.Constraint("Tangent", 2, 2, 3, 2),
    Sketcher.Constraint("Tangent", 3, 1, 4, 1),
    Sketcher.Constraint("Tangent", 4, 2, 5, 1),
    Sketcher.Constraint("Tangent", 5, 2, 6, 1),
    Sketcher.Constraint("Tangent", 6, 2, 7, 1),
    Sketcher.Constraint("Tangent", 7, 2, 8, 1),
    Sketcher.Constraint("Tangent", 8, 2, 9, 2),
    Sketcher.Constraint("Tangent", 9, 1, 10, 1),
    Sketcher.Constraint("Tangent", 10, 2, 11, 1),
    Sketcher.Constraint("Tangent", 11, 2, 12, 1),
    Sketcher.Constraint("Tangent", 12, 2, 13, 1),
    Sketcher.Constraint("Tangent", 13, 2, 14, 1),
    Sketcher.Constraint("Tangent", 14, 2, 15, 2),
    Sketcher.Constraint("Tangent", 15, 1, 16, 1),
    Sketcher.Constraint("Tangent", 16, 2, 17, 1),
    Sketcher.Constraint("Tangent", 17, 2, 18, 1),
    Sketcher.Constraint("Tangent", 18, 2, 19, 1),
    Sketcher.Constraint("Tangent", 19, 2, 20, 1),
    Sketcher.Constraint("Tangent", 20, 2, 21, 2),
    Sketcher.Constraint("Tangent", 21, 1, 22, 1),
    Sketcher.Constraint("Tangent", 22, 2, 23, 1),
    Sketcher.Constraint("Tangent", 23, 2, 0, 1),
    Sketcher.Constraint("Horizontal", 0),
    Sketcher.Constraint("Vertical", 2),
    Sketcher.Constraint("Horizontal", 4),
    Sketcher.Constraint("Vertical", 6),
    Sketcher.Constraint("Horizontal", 8),
    Sketcher.Constraint("Vertical", 10),
    Sketcher.Constraint("Horizontal", 12),
    Sketcher.Constraint("Vertical", 14),
    Sketcher.Constraint("Horizontal", 16),
    Sketcher.Constraint("Vertical", 18),
    Sketcher.Constraint("Horizontal", 20),
    Sketcher.Constraint("Vertical", 22),
    Sketcher.Constraint("Equal", 1, 3),
    Sketcher.Constraint("Equal", 3, 5),
    Sketcher.Constraint("Equal", 5, 7),
    Sketcher.Constraint("Equal", 7, 9),
    Sketcher.Constraint("Equal", 9, 11),
    Sketcher.Constraint("Equal", 11, 13),
    Sketcher.Constraint("Equal", 13, 15),
    Sketcher.Constraint("Equal", 15, 17),
    Sketcher.Constraint("Equal", 17, 19),
    Sketcher.Constraint("Equal", 19, 21),
    Sketcher.Constraint("Equal", 21, 23),
    Sketcher.Constraint("Equal", 23, 25),
    Sketcher.Constraint("Equal", 24, 26),
    Sketcher.Constraint("Equal", 25, 27),
    Sketcher.Constraint("Equal", 26, 28),
    Sketcher.Constraint("Equal", 28, 29),
    Sketcher.Constraint("Symmetric", 1, 3, 13, 3, -1, 1),
    Sketcher.Constraint("Symmetric", 5, 3, 17, 3, -1, 1),
    Sketcher.Constraint("Symmetric", 9, 3, 21, 3, -1, 1),
    Sketcher.Constraint("Symmetric", 9, 3, 15, 3, -2),
    Sketcher.Constraint("Symmetric", 25, 3, 27, 3, -1),
    Sketcher.Constraint("Symmetric", 24, 3, 28, 3, -1),
    Sketcher.Constraint("Symmetric", 26, 3, 29, 3, -1),
    Sketcher.Constraint("Horizontal", 24, 3, 26, 3),
    Sketcher.Constraint("Diameter", 24, Q("16 mm")),
    Sketcher.Constraint("Diameter", 25, Q("10 mm")),
    Sketcher.Constraint("DistanceX", 0, 2, 0, 1, Q("225 mm")),
    Sketcher.Constraint("DistanceX", 4, 2, 4, 1, Q("10 mm")),
    Sketcher.Constraint("DistanceY", 2, 2, 2, 1, Q("35 mm")),
    Sketcher.Constraint("DistanceY", 6, 2, 6, 1, Q("40 mm")),
    Sketcher.Constraint("DistanceY", 24, 3, -1, 1, Q("50 mm")),
    Sketcher.Constraint("DistanceY", 25, 3, -1, 1, Q("14 mm")),
    Sketcher.Constraint("DistanceX", 24, 3, 13, 3, Q("110 mm")),
    Sketcher.Constraint("DistanceX", 25, 3, 15, 3, Q("60 mm")),
    Sketcher.Constraint("DistanceX", 11, 3, 26, 3, Q("15 mm")),
])
sketch3.setExpression("Constraints[60]", "Params.sketch3_diameter")
sketch3.setExpression("Constraints[61]", "Params.sketch3_diameter2")
sketch3.setExpression("Constraints[62]", "Params.sketch3_width")
sketch3.setExpression("Constraints[63]", "Params.sketch3_width2")
sketch3.setExpression("Constraints[64]", "Params.sketch3_height")
pocket1 = doc.addObject("PartDesign::Pocket", "Pocket")
body.addObject(pocket1)
pocket1.Profile = sketch3
pocket1.setExpression("Length", "Params.pocket1_length")

# Sketch on XZ plane
sketch4 = doc.addObject("Sketcher::SketchObject", "Sketch003")
body.addObject(sketch4)
sketch4.AttachmentSupport = (doc.XZ_Plane, [""])
sketch4.MapMode = "FlatFace"
sketch4.addGeometry([
    Part.Circle(V(2.5, -50, 0), V(0, 0, 1), 8),  # 0
    Part.Circle(V(62.5, -14, 0), V(0, 0, 1), 5),  # 1
    Part.Circle(V(62.5, -14, 0), V(0, 0, 1), 3),  # 2
    Part.Circle(V(62.5, 14, 0), V(0, 0, 1), 5),  # 3
    Part.Circle(V(62.5, 14, 0), V(0, 0, 1), 3),  # 4
    Part.Circle(V(2.5, 50, 0), V(0, 0, 1), 8),  # 5
    Part.Circle(V(-97.5, -50, 0), V(0, 0, 1), 8),  # 6
    Part.Circle(V(-97.5, 50, 0), V(0, 0, 1), 8),  # 7
], False)
sketch4.addConstraint([
    Sketcher.Constraint("Coincident", 2, 3, 1, 3),
    Sketcher.Constraint("Coincident", 4, 3, 3, 3),
    Sketcher.Constraint("Equal", 1, 3),
    Sketcher.Constraint("Equal", 2, 4),
    Sketcher.Constraint("Equal", 0, 5),
    Sketcher.Constraint("Equal", 5, 6),
    Sketcher.Constraint("Equal", 6, 7),
    Sketcher.Constraint("Symmetric", 1, 3, 3, 3, -1),
    Sketcher.Constraint("Symmetric", 0, 3, 5, 3, -1),
    Sketcher.Constraint("Symmetric", 6, 3, 7, 3, -1),
    Sketcher.Constraint("Horizontal", 0, 3, 6, 3),
    Sketcher.Constraint("Diameter", 0, Q("16 mm")),
    Sketcher.Constraint("Diameter", 1, Q("10 mm")),
    Sketcher.Constraint("Diameter", 2, Q("6 mm")),
    Sketcher.Constraint("DistanceY", 0, 3, -1, 1, Q("50 mm")),
    Sketcher.Constraint("DistanceY", 1, 3, -1, 1, Q("14 mm")),
    Sketcher.Constraint("DistanceX", 0, 3, 1, 3, Q("60 mm")),
    Sketcher.Constraint("DistanceX", 6, 3, 0, 3, Q("100 mm")),
    Sketcher.Constraint("DistanceX", -1, 1, 0, 3, Q("2.5 mm")),
])
sketch4.setExpression("Constraints[11]", "Params.sketch4_diameter")
sketch4.setExpression("Constraints[12]", "Params.sketch4_diameter2")
sketch4.setExpression("Constraints[13]", "Params.sketch4_diameter3")
pocket2 = doc.addObject("PartDesign::Pocket", "Pocket001")
body.addObject(pocket2)
pocket2.Profile = sketch4
pocket2.setExpression("Length", "Params.pocket2_length")
doc.recompute()

fillet = doc.addObject("PartDesign::Fillet", "Fillet")
body.addObject(fillet)
fillet.Base = (pocket2, edges_at(pocket2, [
    (-148.75, 25, -65),
    (-125, 25, -50),
    (-148.75, 25, -35),
    (50.964, 25, -23.536),
    (-148.75, 25, 35),
    (-125, 25, 50),
    (-148.75, 25, 65),
    (148.75, 25, 65),
    (62.5, 25, -25),
    (125, 25, 50),
    (148.75, 25, 35),
    (148.75, 25, -35),
    (74.036, 25, -23.536),
    (75.5, 25, 0),
    (74.036, 25, 23.536),
    (62.5, 25, 25),
    (50.964, 25, 23.536),
    (49.5, 25, 0),
    (-111.642, 25, -64.142),
    (-47.5, 25, -70),
    (16.642, 25, -64.142),
    (22.5, 25, 0),
    (16.642, 25, 64.142),
    (-47.5, 25, 70),
    (-111.642, 25, 64.142),
    (-117.5, 25, 0),
    (97.5, 25, -49),
    (125, 25, -50),
    (148.75, 25, -65),
]))
fillet.setExpression("Radius", "Params.fillet_radius")

doc.recompute()
